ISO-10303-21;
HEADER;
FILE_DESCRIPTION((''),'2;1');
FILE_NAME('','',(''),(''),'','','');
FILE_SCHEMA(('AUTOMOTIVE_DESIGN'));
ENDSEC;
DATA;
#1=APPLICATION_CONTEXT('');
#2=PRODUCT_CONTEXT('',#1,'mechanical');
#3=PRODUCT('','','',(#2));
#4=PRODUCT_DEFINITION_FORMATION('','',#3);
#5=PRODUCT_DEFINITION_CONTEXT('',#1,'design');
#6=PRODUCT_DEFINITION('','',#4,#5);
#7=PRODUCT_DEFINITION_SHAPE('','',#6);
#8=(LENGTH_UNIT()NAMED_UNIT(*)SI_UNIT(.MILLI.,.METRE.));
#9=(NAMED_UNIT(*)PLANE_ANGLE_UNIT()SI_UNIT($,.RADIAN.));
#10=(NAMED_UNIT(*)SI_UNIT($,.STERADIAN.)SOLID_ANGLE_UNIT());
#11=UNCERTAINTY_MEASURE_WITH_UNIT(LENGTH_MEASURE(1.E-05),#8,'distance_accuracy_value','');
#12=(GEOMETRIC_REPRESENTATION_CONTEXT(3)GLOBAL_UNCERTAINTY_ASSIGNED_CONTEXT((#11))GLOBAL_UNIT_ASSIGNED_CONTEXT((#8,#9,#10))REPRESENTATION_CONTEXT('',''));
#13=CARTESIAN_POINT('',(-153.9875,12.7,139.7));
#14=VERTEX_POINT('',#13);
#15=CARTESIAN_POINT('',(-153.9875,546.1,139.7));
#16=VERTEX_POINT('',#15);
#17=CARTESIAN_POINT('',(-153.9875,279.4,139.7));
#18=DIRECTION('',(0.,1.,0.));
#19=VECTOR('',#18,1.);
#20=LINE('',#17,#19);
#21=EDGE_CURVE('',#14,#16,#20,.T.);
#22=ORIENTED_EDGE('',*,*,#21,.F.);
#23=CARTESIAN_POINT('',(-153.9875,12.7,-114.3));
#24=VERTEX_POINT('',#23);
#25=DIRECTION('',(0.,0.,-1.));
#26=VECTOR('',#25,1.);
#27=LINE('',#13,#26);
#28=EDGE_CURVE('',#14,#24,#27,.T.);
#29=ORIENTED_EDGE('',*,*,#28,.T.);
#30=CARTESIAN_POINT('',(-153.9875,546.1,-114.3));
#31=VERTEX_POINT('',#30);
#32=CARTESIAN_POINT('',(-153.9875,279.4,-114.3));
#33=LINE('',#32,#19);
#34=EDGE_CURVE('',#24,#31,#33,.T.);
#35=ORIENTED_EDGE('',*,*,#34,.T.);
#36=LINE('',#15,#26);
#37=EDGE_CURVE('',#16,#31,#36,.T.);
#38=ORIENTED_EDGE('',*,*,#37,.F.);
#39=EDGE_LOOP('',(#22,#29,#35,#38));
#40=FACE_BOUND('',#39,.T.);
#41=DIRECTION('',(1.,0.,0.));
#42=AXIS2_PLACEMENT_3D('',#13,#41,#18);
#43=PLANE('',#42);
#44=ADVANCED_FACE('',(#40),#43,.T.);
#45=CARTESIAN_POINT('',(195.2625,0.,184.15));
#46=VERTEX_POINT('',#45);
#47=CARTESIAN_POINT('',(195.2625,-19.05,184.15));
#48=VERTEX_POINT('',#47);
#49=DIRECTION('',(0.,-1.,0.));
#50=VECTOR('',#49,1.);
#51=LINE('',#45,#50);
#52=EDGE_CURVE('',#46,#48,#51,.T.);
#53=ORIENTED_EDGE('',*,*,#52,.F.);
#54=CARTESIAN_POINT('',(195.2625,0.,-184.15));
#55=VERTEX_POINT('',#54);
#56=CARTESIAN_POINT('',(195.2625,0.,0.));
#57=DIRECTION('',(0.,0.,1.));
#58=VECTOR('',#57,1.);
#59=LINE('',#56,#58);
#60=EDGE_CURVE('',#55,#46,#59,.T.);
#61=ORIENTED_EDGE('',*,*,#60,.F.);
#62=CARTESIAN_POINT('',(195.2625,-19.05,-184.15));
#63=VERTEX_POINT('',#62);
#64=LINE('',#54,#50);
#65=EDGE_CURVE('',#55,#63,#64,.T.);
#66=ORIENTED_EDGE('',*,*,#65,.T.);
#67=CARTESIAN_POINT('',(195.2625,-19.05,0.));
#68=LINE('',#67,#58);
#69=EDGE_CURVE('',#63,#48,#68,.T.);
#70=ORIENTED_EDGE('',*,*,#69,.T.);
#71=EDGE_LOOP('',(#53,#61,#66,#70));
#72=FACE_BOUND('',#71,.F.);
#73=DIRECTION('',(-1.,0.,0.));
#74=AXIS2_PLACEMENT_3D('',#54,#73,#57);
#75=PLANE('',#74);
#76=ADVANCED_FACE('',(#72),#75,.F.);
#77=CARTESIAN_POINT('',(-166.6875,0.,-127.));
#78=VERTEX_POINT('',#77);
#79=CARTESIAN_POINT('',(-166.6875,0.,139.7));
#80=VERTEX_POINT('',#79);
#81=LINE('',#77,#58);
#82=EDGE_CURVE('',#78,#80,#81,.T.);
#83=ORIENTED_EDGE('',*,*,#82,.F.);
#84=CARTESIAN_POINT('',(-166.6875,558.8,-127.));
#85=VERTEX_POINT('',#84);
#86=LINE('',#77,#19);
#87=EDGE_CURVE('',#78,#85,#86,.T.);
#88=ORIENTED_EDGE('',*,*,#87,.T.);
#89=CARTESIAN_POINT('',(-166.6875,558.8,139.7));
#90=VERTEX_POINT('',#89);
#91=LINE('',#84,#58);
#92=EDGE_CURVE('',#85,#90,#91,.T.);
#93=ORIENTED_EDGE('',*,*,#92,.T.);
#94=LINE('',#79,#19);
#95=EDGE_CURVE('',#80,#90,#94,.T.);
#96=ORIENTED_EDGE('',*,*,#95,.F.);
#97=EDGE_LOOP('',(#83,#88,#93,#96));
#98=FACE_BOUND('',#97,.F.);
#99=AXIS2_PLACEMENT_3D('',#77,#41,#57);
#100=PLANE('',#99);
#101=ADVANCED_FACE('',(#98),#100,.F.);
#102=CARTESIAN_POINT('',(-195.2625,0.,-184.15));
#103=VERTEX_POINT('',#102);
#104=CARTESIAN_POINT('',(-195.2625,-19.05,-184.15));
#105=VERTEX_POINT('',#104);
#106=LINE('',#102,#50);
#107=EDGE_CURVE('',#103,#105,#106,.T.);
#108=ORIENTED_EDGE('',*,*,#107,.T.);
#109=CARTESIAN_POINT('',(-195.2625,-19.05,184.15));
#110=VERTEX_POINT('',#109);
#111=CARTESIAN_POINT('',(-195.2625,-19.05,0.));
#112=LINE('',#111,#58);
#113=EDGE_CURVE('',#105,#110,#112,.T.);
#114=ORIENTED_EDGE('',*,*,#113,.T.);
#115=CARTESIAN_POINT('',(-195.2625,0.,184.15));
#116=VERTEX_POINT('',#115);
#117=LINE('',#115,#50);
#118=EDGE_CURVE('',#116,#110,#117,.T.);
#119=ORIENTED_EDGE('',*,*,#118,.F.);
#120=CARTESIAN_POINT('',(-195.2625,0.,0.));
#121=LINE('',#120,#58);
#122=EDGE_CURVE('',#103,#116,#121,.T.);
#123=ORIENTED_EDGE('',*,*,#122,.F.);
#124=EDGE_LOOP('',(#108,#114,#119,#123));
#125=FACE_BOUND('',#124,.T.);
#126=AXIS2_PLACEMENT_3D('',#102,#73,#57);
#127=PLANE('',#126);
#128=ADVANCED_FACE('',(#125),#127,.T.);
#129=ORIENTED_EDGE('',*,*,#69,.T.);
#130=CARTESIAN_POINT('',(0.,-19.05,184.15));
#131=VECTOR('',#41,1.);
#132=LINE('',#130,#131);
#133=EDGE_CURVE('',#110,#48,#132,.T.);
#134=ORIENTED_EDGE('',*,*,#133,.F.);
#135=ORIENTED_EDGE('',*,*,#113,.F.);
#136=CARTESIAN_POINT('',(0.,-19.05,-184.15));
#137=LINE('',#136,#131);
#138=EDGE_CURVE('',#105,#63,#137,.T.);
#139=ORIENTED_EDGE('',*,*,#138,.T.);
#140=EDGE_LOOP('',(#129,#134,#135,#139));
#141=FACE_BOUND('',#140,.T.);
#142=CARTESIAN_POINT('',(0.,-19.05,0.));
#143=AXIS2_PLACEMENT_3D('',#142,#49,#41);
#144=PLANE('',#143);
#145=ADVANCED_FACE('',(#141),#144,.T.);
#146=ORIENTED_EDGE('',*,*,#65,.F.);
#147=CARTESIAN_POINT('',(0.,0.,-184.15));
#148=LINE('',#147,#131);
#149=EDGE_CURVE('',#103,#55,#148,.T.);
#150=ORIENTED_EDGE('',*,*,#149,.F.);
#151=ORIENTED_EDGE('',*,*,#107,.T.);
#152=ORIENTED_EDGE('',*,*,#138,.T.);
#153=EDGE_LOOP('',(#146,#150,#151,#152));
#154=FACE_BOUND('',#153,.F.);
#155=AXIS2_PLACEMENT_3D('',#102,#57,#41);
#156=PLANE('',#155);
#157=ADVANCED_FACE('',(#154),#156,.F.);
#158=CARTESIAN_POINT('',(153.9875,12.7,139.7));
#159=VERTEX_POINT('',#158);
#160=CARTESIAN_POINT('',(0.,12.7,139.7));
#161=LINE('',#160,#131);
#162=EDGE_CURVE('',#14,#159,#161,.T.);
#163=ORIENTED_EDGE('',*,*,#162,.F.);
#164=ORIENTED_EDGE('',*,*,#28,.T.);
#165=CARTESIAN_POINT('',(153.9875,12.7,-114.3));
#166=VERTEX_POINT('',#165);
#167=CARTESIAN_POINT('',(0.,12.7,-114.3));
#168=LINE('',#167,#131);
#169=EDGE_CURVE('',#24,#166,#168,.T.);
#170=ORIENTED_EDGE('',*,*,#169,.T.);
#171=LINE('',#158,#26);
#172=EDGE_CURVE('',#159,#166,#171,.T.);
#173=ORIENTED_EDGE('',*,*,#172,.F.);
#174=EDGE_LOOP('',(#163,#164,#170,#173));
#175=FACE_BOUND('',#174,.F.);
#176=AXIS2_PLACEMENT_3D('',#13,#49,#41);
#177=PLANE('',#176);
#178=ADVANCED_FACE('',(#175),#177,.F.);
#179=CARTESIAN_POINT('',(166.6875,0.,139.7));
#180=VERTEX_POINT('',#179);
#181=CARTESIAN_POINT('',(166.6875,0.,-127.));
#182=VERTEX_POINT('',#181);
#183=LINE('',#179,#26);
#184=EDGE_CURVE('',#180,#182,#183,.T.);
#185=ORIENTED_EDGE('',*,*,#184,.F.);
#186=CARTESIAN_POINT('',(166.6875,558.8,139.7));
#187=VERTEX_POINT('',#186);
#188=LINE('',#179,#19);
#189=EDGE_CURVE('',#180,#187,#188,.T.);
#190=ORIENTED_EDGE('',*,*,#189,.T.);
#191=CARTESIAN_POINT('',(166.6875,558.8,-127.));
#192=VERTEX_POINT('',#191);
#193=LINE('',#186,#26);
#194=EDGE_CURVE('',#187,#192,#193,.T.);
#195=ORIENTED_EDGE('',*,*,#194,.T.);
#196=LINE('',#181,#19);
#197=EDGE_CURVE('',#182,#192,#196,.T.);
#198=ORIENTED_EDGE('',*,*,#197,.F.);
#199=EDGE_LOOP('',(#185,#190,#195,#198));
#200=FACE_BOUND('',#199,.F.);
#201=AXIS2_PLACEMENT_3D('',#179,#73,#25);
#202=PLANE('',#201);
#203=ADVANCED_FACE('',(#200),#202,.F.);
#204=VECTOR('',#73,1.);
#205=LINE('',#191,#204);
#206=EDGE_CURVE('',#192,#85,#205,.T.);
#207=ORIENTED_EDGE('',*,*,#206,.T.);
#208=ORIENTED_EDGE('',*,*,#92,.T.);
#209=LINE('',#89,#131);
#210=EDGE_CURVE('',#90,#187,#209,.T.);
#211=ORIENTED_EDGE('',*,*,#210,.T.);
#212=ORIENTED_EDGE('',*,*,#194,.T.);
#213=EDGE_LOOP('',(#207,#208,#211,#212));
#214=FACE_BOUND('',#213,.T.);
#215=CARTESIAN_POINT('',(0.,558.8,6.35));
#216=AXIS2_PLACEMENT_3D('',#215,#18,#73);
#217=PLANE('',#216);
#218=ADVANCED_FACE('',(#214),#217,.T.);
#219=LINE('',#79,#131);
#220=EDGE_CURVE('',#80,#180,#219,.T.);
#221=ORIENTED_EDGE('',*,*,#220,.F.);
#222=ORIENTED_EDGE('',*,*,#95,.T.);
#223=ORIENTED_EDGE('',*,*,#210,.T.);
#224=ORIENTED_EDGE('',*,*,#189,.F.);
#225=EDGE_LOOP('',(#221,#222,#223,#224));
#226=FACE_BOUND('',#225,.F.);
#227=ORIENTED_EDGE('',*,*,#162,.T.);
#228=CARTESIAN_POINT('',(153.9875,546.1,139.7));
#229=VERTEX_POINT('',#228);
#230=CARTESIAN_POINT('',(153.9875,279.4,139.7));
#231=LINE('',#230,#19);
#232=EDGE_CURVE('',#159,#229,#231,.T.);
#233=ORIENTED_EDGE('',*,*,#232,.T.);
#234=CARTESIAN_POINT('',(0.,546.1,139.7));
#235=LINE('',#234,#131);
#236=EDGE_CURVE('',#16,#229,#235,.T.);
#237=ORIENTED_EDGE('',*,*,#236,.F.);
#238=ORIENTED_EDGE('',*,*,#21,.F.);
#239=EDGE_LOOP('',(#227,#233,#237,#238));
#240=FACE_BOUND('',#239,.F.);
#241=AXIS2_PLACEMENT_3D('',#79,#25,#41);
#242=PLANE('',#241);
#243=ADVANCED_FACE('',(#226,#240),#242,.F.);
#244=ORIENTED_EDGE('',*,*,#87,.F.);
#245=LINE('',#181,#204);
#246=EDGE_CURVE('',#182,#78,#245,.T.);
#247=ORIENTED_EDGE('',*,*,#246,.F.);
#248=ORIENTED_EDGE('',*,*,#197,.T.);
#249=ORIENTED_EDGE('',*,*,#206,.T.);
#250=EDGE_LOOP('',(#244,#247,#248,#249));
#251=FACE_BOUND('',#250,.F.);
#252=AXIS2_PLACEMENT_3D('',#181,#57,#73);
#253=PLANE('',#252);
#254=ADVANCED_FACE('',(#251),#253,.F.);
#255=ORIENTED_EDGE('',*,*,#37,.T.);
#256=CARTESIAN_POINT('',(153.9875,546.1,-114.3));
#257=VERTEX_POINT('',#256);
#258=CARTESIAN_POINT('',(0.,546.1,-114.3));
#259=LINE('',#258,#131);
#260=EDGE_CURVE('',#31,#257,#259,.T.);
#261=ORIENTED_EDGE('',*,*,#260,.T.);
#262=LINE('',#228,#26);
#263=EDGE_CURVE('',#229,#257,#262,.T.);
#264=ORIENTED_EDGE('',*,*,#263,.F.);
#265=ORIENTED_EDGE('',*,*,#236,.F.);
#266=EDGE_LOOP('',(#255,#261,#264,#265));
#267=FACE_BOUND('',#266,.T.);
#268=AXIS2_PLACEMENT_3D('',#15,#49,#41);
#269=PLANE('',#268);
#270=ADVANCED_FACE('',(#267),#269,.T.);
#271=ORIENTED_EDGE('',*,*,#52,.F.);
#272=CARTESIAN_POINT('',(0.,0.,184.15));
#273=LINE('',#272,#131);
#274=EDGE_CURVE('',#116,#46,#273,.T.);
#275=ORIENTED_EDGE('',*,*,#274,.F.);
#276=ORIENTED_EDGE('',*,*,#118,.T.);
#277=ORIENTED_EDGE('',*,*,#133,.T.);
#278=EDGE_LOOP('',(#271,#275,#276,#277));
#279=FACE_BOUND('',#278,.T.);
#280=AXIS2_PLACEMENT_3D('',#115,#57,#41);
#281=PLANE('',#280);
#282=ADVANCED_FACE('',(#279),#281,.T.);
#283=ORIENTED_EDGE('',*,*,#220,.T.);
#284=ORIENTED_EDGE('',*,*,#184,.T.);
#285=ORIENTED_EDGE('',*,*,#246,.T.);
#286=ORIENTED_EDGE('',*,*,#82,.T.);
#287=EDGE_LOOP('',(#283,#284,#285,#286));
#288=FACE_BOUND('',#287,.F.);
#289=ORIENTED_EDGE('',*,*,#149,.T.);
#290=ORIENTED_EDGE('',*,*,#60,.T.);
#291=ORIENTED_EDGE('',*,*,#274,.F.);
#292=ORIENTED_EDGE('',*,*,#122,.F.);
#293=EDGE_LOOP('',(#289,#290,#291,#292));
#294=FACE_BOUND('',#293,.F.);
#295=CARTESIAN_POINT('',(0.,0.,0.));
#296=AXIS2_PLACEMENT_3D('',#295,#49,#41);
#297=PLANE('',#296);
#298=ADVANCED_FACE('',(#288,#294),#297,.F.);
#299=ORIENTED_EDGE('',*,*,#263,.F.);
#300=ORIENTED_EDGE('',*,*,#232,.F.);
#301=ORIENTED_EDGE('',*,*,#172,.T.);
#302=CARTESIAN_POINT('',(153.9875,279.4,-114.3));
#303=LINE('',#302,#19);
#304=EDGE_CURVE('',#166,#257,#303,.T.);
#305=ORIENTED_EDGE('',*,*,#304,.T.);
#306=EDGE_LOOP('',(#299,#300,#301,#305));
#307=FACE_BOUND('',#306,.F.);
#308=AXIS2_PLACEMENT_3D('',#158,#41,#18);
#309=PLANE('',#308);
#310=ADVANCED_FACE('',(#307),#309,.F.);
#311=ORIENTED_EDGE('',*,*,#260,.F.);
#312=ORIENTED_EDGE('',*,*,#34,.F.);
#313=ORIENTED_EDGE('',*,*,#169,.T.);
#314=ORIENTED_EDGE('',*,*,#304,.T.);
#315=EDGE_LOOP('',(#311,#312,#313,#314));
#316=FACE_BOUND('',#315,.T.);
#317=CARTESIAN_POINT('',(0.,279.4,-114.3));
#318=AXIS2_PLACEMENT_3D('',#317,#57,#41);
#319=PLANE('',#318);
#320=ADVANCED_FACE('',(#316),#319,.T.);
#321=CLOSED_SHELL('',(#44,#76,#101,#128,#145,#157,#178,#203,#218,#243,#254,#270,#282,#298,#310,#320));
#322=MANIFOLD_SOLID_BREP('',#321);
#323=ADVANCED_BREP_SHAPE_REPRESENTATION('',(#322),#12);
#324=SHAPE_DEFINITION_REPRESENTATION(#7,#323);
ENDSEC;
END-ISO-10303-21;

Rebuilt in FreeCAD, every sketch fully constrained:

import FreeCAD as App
import Part
import Sketcher
Q = App.Units.Quantity


def add_polygon(sketch, points):
    """Adds a closed chain of lines whose ends are joined by coincident constraints."""
    first, n = sketch.GeometryCount, len(points)
    for a, b in zip(points, points[1:] + points[:1]):
        sketch.addGeometry(Part.LineSegment(App.Vector(*a, 0), App.Vector(*b, 0)), False)
    for i in range(n):
        sketch.addConstraint(Sketcher.Constraint("Coincident", first + i, 2, first + (i + 1) % n, 1))

doc = App.newDocument("Part")
params = doc.addObject("Spreadsheet::Sheet", "Params")
for row, (alias, value) in enumerate([
    ("sketch1_height", "14.5 in"),
    ("sketch1_width", "15.375 in"),
    ("pad1_length", "0.75 in"),
    ("sketch2_height", "10.5 in"),
    ("sketch2_width", "13.125 in"),
    ("pad2_length", "22 in"),
    ("sketch3_height", "21 in"),
    ("sketch3_width", "12.125 in"),
    ("pocket1_length", "10 in"),
], start=1):
    params.set(f"A{row}", alias)
    params.set(f"B{row}", "=" + value)
    params.setAlias(f"B{row}", alias)

body = doc.addObject("PartDesign::Body", "Body")

# Sketch on XZ plane
sketch1 = body.newObject("Sketcher::SketchObject", "Sketch")
sketch1.AttachmentSupport = (doc.getObject("XZ_Plane"), [""])
sketch1.MapMode = "FlatFace"
add_polygon(sketch1, [(-195.2625, 184.15), (-195.2625, -184.15), (195.2625, -184.15), (195.2625, 184.15)])  # lines 0-3
sketch1.addConstraint(Sketcher.Constraint("Vertical", 0))
sketch1.addConstraint(Sketcher.Constraint("Horizontal", 1))
sketch1.addConstraint(Sketcher.Constraint("Vertical", 2))
sketch1.addConstraint(Sketcher.Constraint("Horizontal", 3))
sketch1.addConstraint(Sketcher.Constraint("Symmetric", 0, 2, 2, 2, -1, 1))
sketch1.addConstraint(Sketcher.Constraint("DistanceY", 0, 2, 0, 1, Q("14.5 in")))
sketch1.addConstraint(Sketcher.Constraint("DistanceX", 1, 1, 1, 2, Q("15.375 in")))
sketch1.setExpression("Constraints[9]", "Params.sketch1_height")
sketch1.setExpression("Constraints[10]", "Params.sketch1_width")
pad1 = body.newObject("PartDesign::Pad", "Pad")
pad1.Profile = sketch1
pad1.setExpression("Length", "Params.pad1_length")

# Sketch on XZ plane
sketch2 = body.newObject("Sketcher::SketchObject", "Sketch001")
sketch2.AttachmentSupport = (doc.getObject("XZ_Plane"), [""])
sketch2.MapMode = "FlatFace"
add_polygon(sketch2, [(166.6875, -127), (-166.6875, -127), (-166.6875, 139.7), (166.6875, 139.7)])  # lines 0-3
sketch2.addConstraint(Sketcher.Constraint("Horizontal", 0))
sketch2.addConstraint(Sketcher.Constraint("Vertical", 1))
sketch2.addConstraint(Sketcher.Constraint("Horizontal", 2))
sketch2.addConstraint(Sketcher.Constraint("Vertical", 3))
sketch2.addConstraint(Sketcher.Constraint("DistanceY", 1, 1, 1, 2, Q("10.5 in")))
sketch2.addConstraint(Sketcher.Constraint("DistanceY", 0, 2, -1, 1, Q("5 in")))
sketch2.addConstraint(Sketcher.Constraint("DistanceX", 0, 2, 0, 1, Q("13.125 in")))
sketch2.addConstraint(Sketcher.Constraint("DistanceX", 0, 2, -1, 1, Q("6.5625 in")))
sketch2.setExpression("Constraints[8]", "Params.sketch2_height")
sketch2.setExpression("Constraints[10]", "Params.sketch2_width")
pad2 = body.newObject("PartDesign::Pad", "Pad001")
pad2.Profile = sketch2
pad2.setExpression("Length", "Params.pad2_length")
pad2.Reversed = True

# Sketch on XY plane
sketch3 = body.newObject("Sketcher::SketchObject", "Sketch002")
sketch3.AttachmentSupport = (doc.getObject("XY_Plane"), [""])
sketch3.MapMode = "FlatFace"
sketch3.AttachmentOffset = App.Placement(App.Vector(0, 0, 5.5 * 25.4), App.Rotation())
add_polygon(sketch3, [(-153.9875, 546.1), (-153.9875, 12.7), (153.9875, 12.7), (153.9875, 546.1)])  # lines 0-3
sketch3.addConstraint(Sketcher.Constraint("Vertical", 0))
sketch3.addConstraint(Sketcher.Constraint("Horizontal", 1))
sketch3.addConstraint(Sketcher.Constraint("Vertical", 2))
sketch3.addConstraint(Sketcher.Constraint("Horizontal", 3))
sketch3.addConstraint(Sketcher.Constraint("DistanceY", 0, 2, 0, 1, Q("21 in")))
sketch3.addConstraint(Sketcher.Constraint("DistanceY", -1, 1, 0, 2, Q("0.5 in")))
sketch3.addConstraint(Sketcher.Constraint("DistanceX", 1, 1, 1, 2, Q("12.125 in")))
sketch3.addConstraint(Sketcher.Constraint("DistanceX", 0, 2, -1, 1, Q("6.0625 in")))
sketch3.setExpression("Constraints[8]", "Params.sketch3_height")
sketch3.setExpression("Constraints[10]", "Params.sketch3_width")
pocket1 = body.newObject("PartDesign::Pocket", "Pocket")
pocket1.Profile = sketch3
pocket1.setExpression("Length", "Params.pocket1_length")

doc.recompute()
